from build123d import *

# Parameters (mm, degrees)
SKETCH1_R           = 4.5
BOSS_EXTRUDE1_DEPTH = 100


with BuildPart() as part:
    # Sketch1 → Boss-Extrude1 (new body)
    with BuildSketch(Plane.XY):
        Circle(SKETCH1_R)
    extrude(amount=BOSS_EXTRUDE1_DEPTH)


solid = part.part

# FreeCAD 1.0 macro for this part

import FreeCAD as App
import Part
import Sketcher
from FreeCAD import Vector

doc = App.newDocument("Part")
body = doc.addObject("PartDesign::Body", "Body")

# Sketch on XY plane
sketch1 = body.newObject("Sketcher::SketchObject", "Sketch")
sketch1.AttachmentSupport = (doc.getObject("XY_Plane"), [""])
sketch1.MapMode = "FlatFace"
sketch1.addGeometry(Part.Circle(Vector(0, 0, 0), Vector(0, 0, 1), 4.5), False)
sketch1.addConstraint([
    Sketcher.Constraint("Coincident", 0, 3, -1, 1),
    Sketcher.Constraint("Diameter", 0, 9.0),
])
pad1 = body.newObject("PartDesign::Pad", "Pad")
pad1.Profile = sketch1
pad1.Length = 100

doc.recompute()
